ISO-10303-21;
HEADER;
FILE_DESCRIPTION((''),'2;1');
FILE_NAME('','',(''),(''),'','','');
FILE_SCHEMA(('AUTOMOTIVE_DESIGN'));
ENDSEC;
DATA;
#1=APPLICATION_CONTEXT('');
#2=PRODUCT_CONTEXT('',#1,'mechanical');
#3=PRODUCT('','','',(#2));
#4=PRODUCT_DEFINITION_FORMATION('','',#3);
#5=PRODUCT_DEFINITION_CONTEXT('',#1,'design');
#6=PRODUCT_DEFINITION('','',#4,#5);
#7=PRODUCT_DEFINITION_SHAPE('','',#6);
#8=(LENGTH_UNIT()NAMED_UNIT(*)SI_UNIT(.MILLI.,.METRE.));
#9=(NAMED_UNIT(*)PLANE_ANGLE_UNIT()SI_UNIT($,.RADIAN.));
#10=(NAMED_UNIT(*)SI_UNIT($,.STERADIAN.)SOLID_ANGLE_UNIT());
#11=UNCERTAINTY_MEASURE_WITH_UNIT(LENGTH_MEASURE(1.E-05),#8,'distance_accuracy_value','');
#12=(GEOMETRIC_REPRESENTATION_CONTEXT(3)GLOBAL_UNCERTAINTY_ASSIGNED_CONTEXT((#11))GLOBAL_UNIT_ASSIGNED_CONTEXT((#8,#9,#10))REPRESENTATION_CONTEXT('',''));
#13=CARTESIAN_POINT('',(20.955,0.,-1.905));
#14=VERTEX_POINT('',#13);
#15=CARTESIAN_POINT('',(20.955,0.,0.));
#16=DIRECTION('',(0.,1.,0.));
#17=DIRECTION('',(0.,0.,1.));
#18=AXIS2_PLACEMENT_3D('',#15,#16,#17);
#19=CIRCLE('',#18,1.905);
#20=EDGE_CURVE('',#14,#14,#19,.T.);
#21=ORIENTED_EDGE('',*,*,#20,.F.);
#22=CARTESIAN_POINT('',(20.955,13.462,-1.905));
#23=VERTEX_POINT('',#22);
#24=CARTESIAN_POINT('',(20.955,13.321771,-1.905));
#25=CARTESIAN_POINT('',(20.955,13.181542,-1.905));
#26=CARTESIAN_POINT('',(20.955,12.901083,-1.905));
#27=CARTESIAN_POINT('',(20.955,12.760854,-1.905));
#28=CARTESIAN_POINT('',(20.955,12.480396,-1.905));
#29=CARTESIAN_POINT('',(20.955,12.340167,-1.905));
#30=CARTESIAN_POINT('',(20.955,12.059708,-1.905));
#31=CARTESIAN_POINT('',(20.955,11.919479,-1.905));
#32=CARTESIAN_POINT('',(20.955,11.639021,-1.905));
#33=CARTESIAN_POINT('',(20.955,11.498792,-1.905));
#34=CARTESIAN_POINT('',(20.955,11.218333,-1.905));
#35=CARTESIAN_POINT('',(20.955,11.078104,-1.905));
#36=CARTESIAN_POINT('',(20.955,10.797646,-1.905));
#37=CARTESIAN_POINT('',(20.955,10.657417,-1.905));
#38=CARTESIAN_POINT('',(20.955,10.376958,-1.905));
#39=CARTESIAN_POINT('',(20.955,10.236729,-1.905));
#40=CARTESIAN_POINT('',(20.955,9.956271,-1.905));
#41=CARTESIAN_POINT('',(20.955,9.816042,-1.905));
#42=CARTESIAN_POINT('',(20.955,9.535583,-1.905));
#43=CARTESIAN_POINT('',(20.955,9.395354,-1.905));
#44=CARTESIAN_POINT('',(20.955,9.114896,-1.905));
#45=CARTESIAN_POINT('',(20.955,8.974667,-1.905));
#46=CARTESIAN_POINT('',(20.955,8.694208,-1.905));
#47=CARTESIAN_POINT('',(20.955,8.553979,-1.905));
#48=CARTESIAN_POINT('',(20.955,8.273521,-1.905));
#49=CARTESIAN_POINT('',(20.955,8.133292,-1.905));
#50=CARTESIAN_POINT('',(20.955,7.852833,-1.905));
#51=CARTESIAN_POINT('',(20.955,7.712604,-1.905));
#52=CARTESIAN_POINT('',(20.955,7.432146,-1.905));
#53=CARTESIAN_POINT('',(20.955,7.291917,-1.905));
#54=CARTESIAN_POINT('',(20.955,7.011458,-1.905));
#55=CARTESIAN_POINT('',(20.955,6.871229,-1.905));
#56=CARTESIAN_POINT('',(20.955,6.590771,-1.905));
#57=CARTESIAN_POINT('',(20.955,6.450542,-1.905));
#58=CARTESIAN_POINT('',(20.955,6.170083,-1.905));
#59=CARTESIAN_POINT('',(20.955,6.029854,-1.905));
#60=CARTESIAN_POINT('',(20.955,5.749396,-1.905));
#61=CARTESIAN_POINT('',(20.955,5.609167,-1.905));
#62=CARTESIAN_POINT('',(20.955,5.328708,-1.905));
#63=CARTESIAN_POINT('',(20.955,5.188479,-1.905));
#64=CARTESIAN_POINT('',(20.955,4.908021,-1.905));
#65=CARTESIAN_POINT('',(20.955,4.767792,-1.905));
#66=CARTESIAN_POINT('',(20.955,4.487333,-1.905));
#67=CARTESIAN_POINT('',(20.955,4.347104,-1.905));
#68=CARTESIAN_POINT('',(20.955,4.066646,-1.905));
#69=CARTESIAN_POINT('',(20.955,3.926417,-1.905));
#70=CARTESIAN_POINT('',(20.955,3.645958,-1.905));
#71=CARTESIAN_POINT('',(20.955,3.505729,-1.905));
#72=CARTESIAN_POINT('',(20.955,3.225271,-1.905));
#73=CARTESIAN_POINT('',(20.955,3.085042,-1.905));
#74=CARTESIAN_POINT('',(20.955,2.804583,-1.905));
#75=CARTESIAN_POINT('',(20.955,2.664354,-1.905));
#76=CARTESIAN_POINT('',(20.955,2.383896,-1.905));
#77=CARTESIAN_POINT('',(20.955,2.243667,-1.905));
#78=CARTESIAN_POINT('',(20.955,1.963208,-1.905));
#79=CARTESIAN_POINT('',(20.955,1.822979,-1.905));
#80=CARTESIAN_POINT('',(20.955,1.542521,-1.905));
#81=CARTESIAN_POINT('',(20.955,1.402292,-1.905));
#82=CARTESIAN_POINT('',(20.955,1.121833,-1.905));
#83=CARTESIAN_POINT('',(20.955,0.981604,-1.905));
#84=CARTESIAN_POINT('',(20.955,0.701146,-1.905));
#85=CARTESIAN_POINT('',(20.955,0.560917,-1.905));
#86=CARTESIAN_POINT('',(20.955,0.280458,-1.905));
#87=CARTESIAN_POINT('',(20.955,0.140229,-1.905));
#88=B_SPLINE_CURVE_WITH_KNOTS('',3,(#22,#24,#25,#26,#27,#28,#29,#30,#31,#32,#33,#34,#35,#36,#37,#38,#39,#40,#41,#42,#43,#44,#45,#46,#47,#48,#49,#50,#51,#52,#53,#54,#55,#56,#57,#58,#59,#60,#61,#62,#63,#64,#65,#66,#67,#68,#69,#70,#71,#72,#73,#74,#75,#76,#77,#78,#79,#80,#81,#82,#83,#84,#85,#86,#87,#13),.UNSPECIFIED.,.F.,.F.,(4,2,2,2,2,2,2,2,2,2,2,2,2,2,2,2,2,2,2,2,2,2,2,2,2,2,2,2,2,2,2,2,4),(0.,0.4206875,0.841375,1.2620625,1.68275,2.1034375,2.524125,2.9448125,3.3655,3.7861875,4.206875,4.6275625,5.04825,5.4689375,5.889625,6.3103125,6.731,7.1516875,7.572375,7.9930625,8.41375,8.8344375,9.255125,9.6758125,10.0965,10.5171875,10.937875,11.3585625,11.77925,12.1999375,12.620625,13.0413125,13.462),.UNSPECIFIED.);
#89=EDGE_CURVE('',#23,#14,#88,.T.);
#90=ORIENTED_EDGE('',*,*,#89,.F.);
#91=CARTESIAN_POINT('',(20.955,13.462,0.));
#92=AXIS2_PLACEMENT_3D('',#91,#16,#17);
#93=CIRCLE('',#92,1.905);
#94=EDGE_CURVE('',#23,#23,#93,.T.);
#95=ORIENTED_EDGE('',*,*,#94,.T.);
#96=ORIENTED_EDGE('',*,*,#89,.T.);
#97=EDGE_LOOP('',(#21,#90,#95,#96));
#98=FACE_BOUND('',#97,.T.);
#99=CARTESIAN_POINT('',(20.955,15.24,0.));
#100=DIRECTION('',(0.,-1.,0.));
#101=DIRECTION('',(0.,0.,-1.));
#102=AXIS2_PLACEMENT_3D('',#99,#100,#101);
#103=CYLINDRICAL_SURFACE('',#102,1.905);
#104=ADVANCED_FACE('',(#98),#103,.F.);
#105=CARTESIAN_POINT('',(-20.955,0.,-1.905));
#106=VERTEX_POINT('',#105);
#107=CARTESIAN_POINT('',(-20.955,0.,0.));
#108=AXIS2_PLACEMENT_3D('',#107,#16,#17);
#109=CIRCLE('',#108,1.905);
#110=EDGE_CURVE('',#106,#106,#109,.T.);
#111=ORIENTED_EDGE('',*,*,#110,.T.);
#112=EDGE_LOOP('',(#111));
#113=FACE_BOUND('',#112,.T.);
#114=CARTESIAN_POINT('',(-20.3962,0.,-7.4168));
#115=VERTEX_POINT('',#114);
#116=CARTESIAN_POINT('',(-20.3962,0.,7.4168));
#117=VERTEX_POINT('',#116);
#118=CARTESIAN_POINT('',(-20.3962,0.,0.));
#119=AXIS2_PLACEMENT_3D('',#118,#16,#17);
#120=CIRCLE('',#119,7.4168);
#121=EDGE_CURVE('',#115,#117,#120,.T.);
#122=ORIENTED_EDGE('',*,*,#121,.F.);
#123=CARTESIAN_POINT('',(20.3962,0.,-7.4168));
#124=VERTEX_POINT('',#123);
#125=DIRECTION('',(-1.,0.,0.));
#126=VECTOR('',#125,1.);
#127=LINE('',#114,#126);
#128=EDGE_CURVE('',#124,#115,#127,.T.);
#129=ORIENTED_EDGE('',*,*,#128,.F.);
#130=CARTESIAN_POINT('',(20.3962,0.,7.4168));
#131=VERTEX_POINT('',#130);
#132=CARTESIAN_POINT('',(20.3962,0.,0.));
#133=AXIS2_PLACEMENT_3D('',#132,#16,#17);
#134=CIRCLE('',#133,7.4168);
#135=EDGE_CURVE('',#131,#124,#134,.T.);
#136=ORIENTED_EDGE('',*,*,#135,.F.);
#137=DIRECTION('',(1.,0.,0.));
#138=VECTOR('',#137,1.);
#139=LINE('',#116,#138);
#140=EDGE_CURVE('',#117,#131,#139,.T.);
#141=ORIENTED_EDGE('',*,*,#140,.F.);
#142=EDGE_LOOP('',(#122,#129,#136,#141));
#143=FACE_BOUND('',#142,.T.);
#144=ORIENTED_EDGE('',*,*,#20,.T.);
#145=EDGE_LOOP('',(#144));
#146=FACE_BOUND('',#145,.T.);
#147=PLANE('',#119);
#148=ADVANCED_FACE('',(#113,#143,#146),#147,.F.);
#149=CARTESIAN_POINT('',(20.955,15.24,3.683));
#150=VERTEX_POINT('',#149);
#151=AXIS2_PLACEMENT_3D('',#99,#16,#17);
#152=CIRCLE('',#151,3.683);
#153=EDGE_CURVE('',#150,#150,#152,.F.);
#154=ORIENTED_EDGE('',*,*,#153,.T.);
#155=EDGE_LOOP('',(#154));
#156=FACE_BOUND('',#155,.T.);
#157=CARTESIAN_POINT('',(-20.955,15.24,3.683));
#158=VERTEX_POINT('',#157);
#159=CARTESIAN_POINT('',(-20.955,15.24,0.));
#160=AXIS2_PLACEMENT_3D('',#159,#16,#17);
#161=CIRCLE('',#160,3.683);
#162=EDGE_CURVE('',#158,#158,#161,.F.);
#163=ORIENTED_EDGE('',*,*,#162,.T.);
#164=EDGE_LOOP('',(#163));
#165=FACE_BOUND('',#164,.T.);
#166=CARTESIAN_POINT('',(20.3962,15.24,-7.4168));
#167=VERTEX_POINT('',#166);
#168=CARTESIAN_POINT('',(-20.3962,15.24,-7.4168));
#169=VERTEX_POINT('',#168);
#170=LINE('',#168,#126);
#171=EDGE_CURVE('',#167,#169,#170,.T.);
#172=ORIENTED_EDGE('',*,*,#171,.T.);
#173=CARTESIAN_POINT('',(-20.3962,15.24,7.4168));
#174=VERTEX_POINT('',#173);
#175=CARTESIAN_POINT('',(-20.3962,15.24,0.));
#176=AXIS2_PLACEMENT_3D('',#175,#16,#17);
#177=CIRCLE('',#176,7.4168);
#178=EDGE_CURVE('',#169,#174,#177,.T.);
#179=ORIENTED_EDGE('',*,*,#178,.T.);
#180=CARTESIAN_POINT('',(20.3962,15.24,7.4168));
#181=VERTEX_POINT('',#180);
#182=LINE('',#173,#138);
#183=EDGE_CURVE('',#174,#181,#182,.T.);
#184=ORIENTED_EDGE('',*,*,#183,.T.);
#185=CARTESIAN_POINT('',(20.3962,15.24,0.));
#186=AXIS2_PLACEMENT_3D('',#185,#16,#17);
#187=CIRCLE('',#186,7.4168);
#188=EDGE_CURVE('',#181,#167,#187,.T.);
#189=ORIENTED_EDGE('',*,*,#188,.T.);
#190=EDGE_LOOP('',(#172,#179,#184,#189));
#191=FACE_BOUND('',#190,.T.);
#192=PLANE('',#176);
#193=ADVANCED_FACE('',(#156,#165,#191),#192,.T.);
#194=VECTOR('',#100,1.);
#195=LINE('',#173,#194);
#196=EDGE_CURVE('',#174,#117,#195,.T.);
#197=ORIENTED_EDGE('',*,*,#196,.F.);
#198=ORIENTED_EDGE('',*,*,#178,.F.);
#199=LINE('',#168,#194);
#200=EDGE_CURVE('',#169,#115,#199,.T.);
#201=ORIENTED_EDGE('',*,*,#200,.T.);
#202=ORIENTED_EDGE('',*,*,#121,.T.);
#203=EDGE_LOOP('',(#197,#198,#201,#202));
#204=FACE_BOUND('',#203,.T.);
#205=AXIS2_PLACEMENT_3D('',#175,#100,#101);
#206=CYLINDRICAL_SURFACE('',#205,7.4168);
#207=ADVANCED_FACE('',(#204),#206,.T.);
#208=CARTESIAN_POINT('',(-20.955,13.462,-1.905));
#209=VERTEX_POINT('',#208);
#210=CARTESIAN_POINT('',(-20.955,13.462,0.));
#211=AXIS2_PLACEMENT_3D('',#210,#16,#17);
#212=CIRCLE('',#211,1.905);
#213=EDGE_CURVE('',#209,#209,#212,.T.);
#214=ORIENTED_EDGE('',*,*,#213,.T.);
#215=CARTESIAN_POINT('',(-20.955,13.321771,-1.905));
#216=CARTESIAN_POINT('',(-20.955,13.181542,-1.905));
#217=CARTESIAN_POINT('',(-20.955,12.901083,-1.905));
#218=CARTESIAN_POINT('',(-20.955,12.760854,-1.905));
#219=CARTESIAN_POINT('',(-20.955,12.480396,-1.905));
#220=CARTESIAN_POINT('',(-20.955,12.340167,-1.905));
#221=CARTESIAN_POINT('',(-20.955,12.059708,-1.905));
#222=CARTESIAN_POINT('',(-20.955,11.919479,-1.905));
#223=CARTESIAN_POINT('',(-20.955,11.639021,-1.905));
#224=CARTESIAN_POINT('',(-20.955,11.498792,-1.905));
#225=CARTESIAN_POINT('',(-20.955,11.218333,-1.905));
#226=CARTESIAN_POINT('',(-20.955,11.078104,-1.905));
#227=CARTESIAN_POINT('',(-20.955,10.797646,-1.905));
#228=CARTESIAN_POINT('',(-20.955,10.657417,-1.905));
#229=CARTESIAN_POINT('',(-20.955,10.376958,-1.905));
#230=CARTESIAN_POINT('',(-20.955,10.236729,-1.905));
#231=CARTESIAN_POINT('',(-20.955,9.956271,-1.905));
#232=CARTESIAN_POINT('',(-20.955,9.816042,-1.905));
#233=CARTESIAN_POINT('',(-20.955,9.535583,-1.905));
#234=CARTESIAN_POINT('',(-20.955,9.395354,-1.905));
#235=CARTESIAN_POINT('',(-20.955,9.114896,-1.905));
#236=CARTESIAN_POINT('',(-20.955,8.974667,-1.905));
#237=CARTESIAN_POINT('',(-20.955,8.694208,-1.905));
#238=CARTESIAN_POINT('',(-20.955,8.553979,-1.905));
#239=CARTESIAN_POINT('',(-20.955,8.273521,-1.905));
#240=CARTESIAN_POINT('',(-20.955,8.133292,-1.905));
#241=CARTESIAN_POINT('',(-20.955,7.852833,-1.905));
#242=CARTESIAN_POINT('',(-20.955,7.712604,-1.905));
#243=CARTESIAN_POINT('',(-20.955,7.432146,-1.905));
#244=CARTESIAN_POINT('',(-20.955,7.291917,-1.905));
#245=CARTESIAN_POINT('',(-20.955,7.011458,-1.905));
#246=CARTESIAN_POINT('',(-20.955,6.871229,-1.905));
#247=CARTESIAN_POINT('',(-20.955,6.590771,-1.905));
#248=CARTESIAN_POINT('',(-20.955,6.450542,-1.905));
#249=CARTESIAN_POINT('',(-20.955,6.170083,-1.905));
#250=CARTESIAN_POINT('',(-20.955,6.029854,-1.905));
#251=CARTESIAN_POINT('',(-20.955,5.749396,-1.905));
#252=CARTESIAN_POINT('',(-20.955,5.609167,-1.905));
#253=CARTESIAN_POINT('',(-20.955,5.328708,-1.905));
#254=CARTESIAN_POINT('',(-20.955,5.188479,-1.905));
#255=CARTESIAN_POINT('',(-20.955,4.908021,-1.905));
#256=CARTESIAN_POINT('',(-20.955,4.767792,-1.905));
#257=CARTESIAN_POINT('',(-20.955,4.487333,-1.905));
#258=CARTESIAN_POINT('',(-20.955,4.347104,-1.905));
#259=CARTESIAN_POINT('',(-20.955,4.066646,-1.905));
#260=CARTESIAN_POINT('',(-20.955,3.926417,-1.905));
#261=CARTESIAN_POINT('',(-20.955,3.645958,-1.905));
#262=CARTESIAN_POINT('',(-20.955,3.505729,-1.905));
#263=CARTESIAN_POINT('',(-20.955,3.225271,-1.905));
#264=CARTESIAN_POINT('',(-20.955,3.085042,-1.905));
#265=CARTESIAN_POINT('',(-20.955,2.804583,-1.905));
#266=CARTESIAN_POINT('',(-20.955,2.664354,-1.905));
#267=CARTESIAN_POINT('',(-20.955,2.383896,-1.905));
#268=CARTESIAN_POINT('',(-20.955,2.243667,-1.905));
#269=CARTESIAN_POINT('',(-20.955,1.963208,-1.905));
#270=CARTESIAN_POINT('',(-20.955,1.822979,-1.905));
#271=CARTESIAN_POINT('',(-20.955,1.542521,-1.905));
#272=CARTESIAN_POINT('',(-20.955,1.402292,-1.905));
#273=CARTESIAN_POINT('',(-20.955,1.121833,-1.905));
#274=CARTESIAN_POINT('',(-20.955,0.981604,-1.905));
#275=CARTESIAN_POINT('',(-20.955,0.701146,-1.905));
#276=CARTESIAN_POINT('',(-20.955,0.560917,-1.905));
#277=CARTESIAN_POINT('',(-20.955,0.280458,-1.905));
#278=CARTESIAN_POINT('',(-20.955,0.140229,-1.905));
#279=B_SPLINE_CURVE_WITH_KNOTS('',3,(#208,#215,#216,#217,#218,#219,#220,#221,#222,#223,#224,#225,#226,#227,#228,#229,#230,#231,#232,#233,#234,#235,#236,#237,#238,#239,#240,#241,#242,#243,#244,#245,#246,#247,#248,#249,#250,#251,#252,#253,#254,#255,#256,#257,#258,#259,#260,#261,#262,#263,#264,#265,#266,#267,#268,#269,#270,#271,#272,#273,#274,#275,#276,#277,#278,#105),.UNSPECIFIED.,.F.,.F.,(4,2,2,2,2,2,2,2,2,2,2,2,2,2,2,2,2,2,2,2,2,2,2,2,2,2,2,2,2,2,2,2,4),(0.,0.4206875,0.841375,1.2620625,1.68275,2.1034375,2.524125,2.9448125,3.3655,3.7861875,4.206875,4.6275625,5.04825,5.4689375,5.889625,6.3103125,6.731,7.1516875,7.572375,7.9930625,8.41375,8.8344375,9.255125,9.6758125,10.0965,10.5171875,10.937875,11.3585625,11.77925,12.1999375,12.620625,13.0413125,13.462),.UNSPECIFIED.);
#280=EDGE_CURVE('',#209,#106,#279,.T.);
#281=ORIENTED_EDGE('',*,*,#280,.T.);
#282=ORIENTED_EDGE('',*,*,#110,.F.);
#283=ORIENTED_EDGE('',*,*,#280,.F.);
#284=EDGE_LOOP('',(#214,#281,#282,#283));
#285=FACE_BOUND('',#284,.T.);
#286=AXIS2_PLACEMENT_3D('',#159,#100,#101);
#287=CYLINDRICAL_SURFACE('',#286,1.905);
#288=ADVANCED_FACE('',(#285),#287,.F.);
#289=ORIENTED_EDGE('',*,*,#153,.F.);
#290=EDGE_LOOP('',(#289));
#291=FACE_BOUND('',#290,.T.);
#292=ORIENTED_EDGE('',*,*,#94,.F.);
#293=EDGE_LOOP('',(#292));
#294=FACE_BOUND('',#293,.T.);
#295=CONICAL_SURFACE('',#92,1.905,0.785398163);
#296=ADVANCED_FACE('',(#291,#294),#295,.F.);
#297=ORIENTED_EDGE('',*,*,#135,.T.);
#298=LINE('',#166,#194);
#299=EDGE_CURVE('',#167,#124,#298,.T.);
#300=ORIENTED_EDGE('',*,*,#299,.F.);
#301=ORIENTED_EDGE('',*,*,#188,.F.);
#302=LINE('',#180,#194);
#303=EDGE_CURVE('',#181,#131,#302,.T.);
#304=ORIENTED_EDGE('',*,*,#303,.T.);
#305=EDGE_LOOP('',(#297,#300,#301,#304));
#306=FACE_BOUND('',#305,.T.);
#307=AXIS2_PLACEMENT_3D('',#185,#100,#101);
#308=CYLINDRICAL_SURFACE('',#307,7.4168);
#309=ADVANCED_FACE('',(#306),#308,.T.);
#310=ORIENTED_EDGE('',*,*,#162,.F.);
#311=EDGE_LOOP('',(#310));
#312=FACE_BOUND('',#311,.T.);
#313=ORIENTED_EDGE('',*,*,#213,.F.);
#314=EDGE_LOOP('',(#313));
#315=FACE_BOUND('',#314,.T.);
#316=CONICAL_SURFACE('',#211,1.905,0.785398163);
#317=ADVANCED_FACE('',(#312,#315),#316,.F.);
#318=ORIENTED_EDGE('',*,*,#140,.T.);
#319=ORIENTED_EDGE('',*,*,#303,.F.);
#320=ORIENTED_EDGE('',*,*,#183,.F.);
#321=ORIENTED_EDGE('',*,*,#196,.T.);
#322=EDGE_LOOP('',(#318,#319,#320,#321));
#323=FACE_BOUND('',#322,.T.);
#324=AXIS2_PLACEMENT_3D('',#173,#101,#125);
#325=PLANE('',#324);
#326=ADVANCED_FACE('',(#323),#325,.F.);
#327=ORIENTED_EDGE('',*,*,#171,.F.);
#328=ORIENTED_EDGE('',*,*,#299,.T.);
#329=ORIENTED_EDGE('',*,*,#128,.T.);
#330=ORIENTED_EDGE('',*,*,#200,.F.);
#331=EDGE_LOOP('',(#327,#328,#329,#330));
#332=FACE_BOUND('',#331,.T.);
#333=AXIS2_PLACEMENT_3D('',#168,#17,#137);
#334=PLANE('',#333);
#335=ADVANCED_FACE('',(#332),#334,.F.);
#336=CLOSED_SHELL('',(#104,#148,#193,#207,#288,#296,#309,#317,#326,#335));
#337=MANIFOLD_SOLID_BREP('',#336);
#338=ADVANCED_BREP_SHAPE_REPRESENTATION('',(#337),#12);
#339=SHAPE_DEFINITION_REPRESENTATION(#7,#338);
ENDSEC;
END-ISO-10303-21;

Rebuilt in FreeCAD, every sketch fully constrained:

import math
import FreeCAD as App
import Part
import Sketcher
Q = App.Units.Quantity


def edges_at(feature, points):
    """Names of the edges that pass closest to the given points."""
    edges = feature.Shape.Edges
    near = lambda p: min(range(len(edges)), key=lambda i: edges[i].distToShape(Part.Vertex(*p))[0])
    return sorted({f"Edge{near(p) + 1}" for p in points})

doc = App.newDocument("Part")
params = doc.addObject("Spreadsheet::Sheet", "Params")
for row, (alias, value) in enumerate([
    ("sketch1_diameter", "0.15 in"),
    ("sketch1_radius", "0.292 in"),
    ("sketch1_width", "1.606 in"),
    ("pad1_length", "0.6 in"),
    ("chamfer_size", "0.07 in"),
], start=1):
    params.set(f"A{row}", alias)
    params.set(f"B{row}", "=" + value)
    params.setAlias(f"B{row}", alias)

body = doc.addObject("PartDesign::Body", "Body")

sketch1 = body.newObject("Sketcher::SketchObject", "Sketch")
sketch1.AttachmentSupport = (doc.getObject("XZ_Plane"), [""])
sketch1.MapMode = "FlatFace"
sketch1.addGeometry(Part.LineSegment(App.Vector(20.3962, -7.4168, 0), App.Vector(-20.3962, -7.4168, 0)), False)
sketch1.addGeometry(Part.ArcOfCircle(Part.Circle(App.Vector(-20.3962, 0, 0), App.Vector(0, 0, 1), 7.4168), math.radians(90), math.radians(270)), False)
sketch1.addGeometry(Part.LineSegment(App.Vector(-20.3962, 7.4168, 0), App.Vector(20.3962, 7.4168, 0)), False)
sketch1.addGeometry(Part.ArcOfCircle(Part.Circle(App.Vector(20.3962, 0, 0), App.Vector(0, 0, 1), 7.4168), math.radians(-90), math.radians(90)), False)
sketch1.addGeometry(Part.Circle(App.Vector(20.955, 0, 0), App.Vector(0, 0, 1), 1.905), False)
sketch1.addGeometry(Part.Circle(App.Vector(-20.955, 0, 0), App.Vector(0, 0, 1), 1.905), False)
sketch1.addConstraint(Sketcher.Constraint("Tangent", 0, 2, 1, 2))
sketch1.addConstraint(Sketcher.Constraint("Tangent", 1, 1, 2, 1))
sketch1.addConstraint(Sketcher.Constraint("Tangent", 2, 2, 3, 2))
sketch1.addConstraint(Sketcher.Constraint("Tangent", 3, 1, 0, 1))
sketch1.addConstraint(Sketcher.Constraint("Horizontal", 0))
sketch1.addConstraint(Sketcher.Constraint("Horizontal", 2))
sketch1.addConstraint(Sketcher.Constraint("Equal", 4, 5))
sketch1.addConstraint(Sketcher.Constraint("Symmetric", 1, 3, 3, 3, -1, 1))
sketch1.addConstraint(Sketcher.Constraint("Symmetric", 4, 3, 5, 3, -1, 1))
sketch1.addConstraint(Sketcher.Constraint("PointOnObject", 4, 3, -1))
sketch1.addConstraint(Sketcher.Constraint("Diameter", 4, Q("0.15 in")))
sketch1.addConstraint(Sketcher.Constraint("Radius", 1, Q("0.292 in")))
sketch1.addConstraint(Sketcher.Constraint("DistanceX", 0, 2, 0, 1, Q("1.606 in")))
sketch1.addConstraint(Sketcher.Constraint("DistanceX", 5, 3, 4, 3, Q("1.65 in")))
sketch1.setExpression("Constraints[10]", "Params.sketch1_diameter")
sketch1.setExpression("Constraints[11]", "Params.sketch1_radius")
sketch1.setExpression("Constraints[12]", "Params.sketch1_width")
pad1 = body.newObject("PartDesign::Pad", "Pad")
pad1.Profile = sketch1
pad1.setExpression("Length", "Params.pad1_length")
pad1.Reversed = True
doc.recompute()

chamfer = body.newObject("PartDesign::Chamfer", "Chamfer")
chamfer.Base = (pad1, edges_at(pad1, [(-20.955, 15.24, 1.905), (20.955, 15.24, 1.905)]))
chamfer.setExpression("Size", "Params.chamfer_size")

doc.recompute()
